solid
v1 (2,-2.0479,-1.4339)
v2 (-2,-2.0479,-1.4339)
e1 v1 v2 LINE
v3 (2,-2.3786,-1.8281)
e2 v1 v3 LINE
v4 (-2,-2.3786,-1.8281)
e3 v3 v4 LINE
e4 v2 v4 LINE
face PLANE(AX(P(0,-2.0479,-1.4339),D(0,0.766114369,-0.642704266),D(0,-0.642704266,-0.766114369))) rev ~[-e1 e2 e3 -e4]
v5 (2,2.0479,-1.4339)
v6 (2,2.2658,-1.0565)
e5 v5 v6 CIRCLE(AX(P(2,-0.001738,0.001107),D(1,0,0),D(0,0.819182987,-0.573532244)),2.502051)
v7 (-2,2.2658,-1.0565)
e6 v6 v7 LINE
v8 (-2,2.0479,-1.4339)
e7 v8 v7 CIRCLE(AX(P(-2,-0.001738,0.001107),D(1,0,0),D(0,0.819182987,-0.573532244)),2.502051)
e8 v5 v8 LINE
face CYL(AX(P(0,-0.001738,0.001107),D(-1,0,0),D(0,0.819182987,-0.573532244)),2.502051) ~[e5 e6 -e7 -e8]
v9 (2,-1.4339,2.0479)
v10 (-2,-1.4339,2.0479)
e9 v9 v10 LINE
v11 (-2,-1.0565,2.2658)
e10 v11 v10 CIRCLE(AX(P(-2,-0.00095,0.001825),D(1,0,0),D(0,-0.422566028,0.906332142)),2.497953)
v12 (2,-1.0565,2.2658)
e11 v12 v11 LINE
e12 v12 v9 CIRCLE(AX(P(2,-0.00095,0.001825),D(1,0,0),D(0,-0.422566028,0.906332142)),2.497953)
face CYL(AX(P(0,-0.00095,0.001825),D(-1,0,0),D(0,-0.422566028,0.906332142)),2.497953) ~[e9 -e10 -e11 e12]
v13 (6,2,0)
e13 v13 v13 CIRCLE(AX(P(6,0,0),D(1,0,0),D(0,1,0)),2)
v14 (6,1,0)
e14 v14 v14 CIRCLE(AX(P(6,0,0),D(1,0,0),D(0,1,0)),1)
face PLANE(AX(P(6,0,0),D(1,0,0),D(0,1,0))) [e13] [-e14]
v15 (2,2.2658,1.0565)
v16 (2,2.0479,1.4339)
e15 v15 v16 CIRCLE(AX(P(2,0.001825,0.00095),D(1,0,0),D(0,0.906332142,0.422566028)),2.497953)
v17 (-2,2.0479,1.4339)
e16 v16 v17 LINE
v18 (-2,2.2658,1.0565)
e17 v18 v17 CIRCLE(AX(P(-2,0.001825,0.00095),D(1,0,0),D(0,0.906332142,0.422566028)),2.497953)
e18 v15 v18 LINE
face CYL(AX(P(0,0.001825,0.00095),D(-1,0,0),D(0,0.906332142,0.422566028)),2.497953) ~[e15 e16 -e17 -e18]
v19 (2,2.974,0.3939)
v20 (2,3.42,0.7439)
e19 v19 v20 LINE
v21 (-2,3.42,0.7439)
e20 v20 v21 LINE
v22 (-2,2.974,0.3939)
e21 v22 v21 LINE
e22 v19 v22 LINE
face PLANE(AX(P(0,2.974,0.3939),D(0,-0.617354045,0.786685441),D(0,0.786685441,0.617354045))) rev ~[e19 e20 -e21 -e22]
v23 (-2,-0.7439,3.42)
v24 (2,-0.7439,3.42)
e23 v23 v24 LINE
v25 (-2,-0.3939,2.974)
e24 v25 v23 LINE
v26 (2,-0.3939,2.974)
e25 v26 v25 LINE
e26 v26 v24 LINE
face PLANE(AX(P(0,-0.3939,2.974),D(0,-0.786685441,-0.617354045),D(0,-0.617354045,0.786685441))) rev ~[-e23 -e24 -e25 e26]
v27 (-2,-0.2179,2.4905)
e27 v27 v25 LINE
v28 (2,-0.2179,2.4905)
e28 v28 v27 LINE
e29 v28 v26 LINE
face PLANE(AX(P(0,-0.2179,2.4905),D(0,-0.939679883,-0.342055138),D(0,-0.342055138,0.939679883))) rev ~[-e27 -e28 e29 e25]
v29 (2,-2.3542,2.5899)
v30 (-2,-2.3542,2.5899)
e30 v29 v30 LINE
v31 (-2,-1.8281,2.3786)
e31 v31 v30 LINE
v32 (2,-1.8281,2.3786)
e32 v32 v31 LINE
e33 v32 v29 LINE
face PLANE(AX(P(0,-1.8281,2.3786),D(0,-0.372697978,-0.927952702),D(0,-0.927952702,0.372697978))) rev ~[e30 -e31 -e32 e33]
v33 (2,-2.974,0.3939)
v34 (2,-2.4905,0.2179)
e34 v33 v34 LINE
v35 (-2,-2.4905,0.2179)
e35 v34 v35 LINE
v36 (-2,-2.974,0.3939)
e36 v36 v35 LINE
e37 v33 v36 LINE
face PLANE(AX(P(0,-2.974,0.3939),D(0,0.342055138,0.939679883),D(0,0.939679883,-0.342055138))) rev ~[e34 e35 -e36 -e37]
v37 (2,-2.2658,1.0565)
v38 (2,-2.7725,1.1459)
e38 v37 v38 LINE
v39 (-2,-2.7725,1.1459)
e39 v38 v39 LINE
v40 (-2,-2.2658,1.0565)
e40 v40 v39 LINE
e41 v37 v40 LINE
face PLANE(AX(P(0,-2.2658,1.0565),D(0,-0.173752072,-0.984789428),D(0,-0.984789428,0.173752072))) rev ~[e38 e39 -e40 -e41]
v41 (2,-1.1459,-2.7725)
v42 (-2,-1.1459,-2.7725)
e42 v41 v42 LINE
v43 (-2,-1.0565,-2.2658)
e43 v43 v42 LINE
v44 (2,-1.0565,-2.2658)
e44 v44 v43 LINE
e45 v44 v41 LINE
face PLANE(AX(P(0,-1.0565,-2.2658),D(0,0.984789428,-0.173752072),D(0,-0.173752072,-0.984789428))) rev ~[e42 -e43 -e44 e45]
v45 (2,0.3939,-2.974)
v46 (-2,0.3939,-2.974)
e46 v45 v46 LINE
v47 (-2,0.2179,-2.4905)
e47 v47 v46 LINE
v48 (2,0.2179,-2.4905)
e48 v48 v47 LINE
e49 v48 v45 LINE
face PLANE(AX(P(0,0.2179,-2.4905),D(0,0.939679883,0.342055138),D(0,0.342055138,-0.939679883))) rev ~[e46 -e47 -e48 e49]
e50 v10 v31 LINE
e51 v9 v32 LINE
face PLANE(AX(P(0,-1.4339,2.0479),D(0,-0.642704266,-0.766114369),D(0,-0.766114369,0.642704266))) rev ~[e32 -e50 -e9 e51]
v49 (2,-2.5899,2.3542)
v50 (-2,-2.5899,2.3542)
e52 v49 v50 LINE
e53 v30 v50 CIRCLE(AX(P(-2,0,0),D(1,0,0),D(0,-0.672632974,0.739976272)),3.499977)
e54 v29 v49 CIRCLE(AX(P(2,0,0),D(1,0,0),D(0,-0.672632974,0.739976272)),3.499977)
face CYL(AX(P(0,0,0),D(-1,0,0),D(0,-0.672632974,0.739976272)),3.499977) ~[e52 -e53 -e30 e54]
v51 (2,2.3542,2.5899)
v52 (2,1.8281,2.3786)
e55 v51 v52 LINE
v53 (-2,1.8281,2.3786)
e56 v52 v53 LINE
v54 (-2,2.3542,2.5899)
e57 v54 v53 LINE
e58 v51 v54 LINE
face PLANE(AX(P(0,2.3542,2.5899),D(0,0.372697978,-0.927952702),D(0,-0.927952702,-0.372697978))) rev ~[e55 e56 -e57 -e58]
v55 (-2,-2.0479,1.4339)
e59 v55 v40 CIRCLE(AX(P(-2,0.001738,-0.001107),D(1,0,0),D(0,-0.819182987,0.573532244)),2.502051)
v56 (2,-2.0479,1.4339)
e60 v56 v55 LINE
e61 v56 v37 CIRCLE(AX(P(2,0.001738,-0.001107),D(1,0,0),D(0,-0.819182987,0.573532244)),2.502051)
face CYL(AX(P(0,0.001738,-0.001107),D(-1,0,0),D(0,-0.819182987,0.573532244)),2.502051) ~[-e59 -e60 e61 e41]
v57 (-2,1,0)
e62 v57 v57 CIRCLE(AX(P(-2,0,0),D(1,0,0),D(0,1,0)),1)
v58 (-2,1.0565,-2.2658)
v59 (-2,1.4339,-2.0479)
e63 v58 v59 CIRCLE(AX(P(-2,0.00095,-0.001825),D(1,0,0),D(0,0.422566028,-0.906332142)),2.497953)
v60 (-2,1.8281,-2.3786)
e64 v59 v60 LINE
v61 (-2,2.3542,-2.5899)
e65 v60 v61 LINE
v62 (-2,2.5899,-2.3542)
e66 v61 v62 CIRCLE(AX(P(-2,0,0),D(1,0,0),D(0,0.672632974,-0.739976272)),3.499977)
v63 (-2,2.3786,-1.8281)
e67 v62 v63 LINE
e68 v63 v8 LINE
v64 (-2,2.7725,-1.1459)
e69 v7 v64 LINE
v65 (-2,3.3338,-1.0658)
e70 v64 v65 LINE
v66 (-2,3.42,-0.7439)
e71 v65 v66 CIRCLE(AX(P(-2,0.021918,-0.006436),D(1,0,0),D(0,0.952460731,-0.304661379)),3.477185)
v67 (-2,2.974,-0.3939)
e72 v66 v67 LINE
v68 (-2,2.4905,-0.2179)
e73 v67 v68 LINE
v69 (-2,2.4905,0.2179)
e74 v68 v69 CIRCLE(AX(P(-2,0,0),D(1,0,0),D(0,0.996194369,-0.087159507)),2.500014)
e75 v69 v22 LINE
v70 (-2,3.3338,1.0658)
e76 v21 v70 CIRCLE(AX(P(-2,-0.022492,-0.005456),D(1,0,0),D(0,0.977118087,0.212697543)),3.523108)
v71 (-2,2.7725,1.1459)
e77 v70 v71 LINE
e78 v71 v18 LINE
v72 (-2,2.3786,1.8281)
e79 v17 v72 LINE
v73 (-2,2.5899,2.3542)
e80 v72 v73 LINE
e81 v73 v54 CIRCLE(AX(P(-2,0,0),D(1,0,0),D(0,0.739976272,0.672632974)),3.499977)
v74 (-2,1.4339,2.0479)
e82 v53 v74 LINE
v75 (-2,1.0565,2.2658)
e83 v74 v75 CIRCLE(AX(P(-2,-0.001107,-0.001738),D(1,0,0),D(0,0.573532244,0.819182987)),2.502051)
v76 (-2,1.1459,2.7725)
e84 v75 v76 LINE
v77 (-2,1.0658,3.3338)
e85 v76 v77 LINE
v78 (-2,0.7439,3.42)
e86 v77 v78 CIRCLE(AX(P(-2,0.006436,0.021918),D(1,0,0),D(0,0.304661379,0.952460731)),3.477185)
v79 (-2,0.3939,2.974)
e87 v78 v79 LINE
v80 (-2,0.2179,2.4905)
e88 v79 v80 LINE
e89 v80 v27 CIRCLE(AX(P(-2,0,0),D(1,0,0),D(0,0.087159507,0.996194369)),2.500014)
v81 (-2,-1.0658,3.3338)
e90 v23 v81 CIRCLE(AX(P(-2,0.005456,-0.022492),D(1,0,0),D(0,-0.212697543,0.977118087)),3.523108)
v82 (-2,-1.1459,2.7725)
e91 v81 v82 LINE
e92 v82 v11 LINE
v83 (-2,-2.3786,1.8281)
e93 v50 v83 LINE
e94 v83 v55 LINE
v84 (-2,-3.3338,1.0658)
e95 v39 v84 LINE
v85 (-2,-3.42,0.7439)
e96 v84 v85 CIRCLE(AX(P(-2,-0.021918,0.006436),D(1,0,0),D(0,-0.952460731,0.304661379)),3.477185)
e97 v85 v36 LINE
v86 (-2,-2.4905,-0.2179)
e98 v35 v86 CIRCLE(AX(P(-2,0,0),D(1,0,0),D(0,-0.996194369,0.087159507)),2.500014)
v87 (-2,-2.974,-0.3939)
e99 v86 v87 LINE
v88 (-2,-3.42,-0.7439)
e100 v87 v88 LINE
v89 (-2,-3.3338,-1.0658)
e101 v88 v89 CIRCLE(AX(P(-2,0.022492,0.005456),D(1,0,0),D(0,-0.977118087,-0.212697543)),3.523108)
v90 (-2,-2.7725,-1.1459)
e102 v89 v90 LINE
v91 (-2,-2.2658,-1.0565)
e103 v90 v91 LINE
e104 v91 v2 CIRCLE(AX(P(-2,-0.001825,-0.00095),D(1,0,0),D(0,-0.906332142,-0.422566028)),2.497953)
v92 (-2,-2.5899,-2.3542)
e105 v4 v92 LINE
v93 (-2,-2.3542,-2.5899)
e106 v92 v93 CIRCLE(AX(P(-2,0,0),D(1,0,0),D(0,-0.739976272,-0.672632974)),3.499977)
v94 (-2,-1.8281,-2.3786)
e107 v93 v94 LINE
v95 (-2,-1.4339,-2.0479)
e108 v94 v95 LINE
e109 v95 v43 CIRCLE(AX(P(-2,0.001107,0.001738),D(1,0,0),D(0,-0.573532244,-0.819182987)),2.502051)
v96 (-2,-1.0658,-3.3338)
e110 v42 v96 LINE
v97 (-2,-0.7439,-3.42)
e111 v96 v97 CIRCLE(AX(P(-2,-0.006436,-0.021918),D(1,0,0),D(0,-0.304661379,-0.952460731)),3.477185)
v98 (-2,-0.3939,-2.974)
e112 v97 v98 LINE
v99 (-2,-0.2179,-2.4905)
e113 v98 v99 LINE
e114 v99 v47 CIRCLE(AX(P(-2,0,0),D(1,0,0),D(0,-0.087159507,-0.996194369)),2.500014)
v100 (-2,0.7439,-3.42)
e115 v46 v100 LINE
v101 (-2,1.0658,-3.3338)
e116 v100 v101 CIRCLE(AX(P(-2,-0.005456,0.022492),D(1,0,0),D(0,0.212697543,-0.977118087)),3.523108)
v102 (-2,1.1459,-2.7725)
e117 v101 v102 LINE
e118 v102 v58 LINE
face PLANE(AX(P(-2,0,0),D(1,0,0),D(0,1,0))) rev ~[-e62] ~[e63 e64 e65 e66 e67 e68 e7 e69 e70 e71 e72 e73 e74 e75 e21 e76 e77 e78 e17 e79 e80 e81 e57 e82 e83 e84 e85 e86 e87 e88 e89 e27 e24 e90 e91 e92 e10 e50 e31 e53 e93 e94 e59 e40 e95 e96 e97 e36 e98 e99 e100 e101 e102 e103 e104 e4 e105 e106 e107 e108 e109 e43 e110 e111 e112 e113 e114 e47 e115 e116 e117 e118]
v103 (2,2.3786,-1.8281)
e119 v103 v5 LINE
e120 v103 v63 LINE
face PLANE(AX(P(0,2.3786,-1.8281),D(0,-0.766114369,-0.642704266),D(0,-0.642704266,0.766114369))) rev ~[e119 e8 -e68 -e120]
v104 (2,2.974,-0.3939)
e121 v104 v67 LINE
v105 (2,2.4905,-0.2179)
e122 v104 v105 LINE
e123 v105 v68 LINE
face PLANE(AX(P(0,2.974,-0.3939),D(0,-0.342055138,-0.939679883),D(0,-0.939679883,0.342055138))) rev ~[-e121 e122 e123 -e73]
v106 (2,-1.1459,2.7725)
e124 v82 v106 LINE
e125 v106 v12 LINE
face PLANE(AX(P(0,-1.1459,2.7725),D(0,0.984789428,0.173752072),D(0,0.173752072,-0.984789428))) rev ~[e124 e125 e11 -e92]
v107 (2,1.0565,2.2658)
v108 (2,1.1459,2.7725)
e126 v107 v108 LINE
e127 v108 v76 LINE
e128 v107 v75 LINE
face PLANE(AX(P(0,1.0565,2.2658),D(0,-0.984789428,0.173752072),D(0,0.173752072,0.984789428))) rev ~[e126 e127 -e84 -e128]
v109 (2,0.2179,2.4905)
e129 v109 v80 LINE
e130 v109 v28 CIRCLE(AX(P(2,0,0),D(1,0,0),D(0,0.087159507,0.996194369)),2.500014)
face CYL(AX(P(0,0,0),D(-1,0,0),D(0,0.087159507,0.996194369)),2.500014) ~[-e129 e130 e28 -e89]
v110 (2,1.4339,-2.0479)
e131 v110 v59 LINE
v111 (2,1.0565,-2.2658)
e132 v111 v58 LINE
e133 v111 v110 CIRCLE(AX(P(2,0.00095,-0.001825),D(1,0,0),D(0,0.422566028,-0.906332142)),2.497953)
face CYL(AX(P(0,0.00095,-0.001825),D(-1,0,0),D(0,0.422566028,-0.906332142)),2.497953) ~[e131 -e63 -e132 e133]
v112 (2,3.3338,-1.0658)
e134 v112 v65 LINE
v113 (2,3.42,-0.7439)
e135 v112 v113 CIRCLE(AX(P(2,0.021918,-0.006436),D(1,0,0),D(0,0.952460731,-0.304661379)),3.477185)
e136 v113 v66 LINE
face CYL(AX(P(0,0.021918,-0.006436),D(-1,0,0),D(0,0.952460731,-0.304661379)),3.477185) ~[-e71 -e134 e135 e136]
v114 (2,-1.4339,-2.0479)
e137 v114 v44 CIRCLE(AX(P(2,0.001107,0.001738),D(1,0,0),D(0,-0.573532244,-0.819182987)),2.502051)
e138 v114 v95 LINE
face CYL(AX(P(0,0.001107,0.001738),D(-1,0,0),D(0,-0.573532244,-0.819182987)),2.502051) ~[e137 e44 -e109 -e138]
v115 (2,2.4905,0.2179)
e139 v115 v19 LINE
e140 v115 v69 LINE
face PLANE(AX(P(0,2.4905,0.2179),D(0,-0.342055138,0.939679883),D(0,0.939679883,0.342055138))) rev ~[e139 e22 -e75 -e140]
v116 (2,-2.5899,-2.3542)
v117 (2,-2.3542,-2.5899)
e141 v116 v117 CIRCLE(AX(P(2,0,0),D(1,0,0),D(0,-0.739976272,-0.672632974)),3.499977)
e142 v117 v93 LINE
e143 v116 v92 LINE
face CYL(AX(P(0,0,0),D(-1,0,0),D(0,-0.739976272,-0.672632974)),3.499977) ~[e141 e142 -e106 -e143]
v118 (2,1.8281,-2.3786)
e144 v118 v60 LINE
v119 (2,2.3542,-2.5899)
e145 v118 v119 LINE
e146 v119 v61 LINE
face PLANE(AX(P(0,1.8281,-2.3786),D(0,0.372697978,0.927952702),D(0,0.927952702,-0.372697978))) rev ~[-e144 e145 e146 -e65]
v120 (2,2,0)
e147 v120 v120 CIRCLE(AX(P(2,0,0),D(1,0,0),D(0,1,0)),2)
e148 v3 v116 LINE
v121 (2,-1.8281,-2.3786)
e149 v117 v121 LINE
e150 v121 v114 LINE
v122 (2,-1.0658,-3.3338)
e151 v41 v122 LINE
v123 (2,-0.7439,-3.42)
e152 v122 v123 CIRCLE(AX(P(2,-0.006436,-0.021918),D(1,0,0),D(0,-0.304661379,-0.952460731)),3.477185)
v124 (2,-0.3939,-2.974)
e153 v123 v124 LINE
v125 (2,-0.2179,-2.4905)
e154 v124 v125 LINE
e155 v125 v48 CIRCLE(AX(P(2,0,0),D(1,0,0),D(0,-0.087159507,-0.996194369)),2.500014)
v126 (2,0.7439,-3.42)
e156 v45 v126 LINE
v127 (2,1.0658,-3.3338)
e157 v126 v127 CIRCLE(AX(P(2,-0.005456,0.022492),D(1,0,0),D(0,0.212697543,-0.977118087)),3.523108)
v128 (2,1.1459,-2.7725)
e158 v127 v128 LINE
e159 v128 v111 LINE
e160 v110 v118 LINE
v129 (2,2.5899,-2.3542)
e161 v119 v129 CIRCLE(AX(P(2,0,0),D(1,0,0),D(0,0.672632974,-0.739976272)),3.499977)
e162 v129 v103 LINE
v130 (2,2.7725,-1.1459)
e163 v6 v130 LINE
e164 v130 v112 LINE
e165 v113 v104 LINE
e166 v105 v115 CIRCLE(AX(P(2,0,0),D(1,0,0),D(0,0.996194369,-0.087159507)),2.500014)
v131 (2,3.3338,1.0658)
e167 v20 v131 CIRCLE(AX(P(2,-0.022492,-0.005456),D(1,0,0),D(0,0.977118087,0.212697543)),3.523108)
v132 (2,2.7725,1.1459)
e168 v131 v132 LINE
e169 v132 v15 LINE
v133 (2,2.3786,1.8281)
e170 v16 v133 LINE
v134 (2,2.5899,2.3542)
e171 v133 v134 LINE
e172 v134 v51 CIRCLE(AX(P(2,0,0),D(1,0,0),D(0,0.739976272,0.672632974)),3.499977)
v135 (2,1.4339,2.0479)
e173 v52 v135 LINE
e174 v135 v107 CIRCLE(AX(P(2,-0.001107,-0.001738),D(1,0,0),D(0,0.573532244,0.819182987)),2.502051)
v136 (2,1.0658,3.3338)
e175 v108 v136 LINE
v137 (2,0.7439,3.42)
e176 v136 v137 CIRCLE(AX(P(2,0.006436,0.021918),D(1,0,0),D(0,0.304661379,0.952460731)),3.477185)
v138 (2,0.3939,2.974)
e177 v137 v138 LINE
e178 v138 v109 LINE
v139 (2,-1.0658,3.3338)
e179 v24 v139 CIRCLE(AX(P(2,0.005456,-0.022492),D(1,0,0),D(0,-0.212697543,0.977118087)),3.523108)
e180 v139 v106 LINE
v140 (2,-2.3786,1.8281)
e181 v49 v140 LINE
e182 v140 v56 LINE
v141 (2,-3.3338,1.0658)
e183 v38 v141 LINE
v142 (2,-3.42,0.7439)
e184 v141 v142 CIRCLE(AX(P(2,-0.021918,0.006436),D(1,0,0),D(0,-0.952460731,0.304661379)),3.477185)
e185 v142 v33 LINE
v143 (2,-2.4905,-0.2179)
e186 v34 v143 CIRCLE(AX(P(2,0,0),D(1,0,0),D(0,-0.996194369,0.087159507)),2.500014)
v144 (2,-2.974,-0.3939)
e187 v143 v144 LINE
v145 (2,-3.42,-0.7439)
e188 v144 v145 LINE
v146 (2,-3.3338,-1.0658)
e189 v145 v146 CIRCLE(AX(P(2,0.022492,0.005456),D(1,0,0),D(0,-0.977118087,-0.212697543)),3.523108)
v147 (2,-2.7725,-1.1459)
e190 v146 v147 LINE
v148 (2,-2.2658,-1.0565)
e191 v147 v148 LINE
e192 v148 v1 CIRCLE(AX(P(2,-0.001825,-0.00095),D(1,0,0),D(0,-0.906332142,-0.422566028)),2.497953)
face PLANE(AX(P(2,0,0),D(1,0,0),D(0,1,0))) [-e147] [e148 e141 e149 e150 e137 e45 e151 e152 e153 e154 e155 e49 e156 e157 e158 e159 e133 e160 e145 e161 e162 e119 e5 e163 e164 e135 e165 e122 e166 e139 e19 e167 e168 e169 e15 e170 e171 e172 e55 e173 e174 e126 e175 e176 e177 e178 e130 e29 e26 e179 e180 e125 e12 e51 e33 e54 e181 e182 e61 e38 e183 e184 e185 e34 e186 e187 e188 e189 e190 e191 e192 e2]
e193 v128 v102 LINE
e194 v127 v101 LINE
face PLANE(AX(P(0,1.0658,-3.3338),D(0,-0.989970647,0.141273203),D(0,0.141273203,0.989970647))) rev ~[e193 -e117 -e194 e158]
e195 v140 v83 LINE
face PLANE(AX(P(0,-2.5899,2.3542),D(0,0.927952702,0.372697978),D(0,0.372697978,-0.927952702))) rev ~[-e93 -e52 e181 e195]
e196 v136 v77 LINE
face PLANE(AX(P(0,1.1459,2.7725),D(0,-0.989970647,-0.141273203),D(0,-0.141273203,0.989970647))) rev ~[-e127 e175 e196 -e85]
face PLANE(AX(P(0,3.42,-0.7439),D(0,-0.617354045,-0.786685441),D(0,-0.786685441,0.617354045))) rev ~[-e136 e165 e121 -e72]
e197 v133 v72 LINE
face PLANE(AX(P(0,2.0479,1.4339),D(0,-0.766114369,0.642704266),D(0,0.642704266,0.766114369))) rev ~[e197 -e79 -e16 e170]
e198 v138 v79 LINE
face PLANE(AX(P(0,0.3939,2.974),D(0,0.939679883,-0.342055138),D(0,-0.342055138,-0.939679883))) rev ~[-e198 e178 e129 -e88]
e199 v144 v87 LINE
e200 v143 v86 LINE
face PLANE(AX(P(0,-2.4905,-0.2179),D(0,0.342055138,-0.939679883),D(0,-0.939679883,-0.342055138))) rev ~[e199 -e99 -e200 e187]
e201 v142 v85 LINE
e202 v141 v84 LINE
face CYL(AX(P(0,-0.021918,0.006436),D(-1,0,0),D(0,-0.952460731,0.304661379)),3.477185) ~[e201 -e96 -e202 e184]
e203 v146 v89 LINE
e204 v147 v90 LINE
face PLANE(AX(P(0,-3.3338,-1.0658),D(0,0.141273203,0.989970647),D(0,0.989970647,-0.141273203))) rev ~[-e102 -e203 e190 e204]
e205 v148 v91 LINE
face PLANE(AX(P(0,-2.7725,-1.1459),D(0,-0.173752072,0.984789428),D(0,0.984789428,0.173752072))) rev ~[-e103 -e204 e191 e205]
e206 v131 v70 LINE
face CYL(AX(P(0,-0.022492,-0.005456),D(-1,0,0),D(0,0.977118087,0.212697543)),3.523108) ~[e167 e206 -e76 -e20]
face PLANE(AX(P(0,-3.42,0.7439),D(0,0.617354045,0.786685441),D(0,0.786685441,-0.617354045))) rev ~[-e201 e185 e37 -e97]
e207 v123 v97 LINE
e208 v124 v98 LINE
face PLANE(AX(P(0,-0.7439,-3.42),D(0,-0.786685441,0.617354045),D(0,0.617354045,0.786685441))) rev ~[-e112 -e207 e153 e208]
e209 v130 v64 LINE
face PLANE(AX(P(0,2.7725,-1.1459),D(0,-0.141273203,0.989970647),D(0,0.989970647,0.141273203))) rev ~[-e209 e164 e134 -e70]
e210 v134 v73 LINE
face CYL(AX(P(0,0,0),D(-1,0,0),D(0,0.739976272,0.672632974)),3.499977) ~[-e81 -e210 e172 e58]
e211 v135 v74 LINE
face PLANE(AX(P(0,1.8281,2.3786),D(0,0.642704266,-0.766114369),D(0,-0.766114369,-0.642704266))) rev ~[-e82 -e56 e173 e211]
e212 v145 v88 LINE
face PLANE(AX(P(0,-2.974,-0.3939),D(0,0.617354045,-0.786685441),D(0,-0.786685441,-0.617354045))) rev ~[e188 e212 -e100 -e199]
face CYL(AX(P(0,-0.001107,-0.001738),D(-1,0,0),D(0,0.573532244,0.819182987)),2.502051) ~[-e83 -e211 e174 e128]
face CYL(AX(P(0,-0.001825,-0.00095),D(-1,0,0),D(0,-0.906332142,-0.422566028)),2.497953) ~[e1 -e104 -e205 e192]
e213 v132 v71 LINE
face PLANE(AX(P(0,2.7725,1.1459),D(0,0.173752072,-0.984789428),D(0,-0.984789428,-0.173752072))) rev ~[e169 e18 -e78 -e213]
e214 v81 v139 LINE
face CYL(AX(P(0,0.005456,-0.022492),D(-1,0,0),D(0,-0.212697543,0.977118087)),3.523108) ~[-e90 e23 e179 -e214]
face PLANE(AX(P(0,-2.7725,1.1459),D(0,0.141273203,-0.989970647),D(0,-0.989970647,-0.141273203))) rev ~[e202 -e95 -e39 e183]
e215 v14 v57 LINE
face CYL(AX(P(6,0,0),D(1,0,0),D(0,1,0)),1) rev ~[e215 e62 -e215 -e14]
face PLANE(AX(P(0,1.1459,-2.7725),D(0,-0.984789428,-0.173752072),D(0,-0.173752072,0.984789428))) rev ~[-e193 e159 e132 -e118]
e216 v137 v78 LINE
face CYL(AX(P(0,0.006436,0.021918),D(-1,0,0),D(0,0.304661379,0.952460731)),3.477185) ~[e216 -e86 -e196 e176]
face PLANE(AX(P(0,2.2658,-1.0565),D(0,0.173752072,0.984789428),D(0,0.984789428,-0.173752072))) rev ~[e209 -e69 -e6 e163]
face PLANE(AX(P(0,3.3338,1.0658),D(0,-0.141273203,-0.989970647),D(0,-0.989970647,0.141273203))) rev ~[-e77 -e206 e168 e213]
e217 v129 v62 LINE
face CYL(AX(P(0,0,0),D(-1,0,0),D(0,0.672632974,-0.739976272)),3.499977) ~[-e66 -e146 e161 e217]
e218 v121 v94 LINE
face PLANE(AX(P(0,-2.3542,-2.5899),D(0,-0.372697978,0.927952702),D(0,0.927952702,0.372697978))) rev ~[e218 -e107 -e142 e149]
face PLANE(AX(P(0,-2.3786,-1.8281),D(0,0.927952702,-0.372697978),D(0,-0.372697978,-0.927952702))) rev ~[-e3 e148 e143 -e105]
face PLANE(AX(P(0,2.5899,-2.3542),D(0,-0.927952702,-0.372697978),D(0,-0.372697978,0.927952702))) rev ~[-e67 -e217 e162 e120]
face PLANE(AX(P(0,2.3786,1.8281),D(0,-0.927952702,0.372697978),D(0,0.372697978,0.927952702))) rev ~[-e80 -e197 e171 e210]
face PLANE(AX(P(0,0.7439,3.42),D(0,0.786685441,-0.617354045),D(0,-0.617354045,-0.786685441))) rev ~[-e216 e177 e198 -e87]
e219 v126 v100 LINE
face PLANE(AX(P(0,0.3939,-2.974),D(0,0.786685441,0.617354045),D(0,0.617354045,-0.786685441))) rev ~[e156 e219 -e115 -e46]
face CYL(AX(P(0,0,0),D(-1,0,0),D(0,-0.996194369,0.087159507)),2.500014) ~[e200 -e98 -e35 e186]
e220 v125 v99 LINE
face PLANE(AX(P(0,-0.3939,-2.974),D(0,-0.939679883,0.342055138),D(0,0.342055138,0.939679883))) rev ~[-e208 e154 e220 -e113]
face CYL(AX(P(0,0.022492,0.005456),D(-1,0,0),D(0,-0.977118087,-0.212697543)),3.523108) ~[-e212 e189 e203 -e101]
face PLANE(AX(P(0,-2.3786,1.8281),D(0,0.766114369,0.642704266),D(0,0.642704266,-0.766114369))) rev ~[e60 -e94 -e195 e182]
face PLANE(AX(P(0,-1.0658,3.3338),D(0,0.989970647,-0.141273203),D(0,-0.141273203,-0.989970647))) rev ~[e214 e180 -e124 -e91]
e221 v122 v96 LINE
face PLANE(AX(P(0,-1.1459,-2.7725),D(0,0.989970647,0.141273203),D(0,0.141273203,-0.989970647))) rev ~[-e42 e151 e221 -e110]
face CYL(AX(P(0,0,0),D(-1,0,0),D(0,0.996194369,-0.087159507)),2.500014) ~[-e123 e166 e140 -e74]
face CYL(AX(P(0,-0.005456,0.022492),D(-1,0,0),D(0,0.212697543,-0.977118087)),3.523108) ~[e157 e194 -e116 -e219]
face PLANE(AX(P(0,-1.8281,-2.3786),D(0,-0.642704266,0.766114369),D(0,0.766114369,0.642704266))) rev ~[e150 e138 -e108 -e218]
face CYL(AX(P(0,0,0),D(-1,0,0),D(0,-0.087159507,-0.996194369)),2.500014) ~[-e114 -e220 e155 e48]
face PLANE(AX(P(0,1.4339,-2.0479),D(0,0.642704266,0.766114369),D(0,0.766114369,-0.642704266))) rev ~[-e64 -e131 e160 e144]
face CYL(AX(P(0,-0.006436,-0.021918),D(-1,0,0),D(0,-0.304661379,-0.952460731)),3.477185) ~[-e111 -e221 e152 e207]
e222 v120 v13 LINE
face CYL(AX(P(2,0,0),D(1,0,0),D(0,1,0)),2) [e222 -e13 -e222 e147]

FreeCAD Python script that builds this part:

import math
import FreeCAD as App
import Part
import Sketcher
from FreeCAD import Vector
Q = App.Units.Quantity

doc = App.newDocument("Part")
body = doc.addObject("PartDesign::Body", "Body")

# Sketch on YZ plane
sketch1 = body.newObject("Sketcher::SketchObject", "Sketch")
sketch1.AttachmentSupport = (doc.getObject("YZ_Plane"), [""])
sketch1.MapMode = "FlatFace"
sketch1.addGeometry(Part.LineSegment(Vector(-0.3939, 2.974, 0), Vector(-0.7439, 3.42, 0)), False)
sketch1.addGeometry(Part.ArcOfCircle(Part.Circle(Vector(0.005456, -0.022492, 0), Vector(0, 0, 1), 3.523108), math.radians(102.280482), math.radians(107.701965)), False)
sketch1.addGeometry(Part.LineSegment(Vector(-1.0658, 3.3338, 0), Vector(-1.1459, 2.7725, 0)), False)
sketch1.addGeometry(Part.LineSegment(Vector(-1.1459, 2.7725, 0), Vector(-1.0565, 2.2658, 0)), False)
sketch1.addGeometry(Part.ArcOfCircle(Part.Circle(Vector(-0.00095, 0.001825, 0), Vector(0, 0, 1), 2.497953), math.radians(114.996698), math.radians(125.005126)), False)
sketch1.addGeometry(Part.LineSegment(Vector(-1.4339, 2.0479, 0), Vector(-1.8281, 2.3786, 0)), False)
sketch1.addGeometry(Part.LineSegment(Vector(-1.8281, 2.3786, 0), Vector(-2.3542, 2.5899, 0)), False)
sketch1.addGeometry(Part.ArcOfCircle(Part.Circle(Vector(0, 0, 0), Vector(0, 0, 1), 3.499977), math.radians(132.270606), math.radians(137.729394)), False)
sketch1.addGeometry(Part.LineSegment(Vector(-2.5899, 2.3542, 0), Vector(-2.3786, 1.8281, 0)), False)
sketch1.addGeometry(Part.LineSegment(Vector(-2.3786, 1.8281, 0), Vector(-2.0479, 1.4339, 0)), False)
sketch1.addGeometry(Part.ArcOfCircle(Part.Circle(Vector(0.001738, -0.001107, 0), Vector(0, 0, 1), 2.502051), math.radians(145.003091), math.radians(154.995085)), False)
sketch1.addGeometry(Part.LineSegment(Vector(-2.2658, 1.0565, 0), Vector(-2.7725, 1.1459, 0)), False)
sketch1.addGeometry(Part.LineSegment(Vector(-2.7725, 1.1459, 0), Vector(-3.3338, 1.0658, 0)), False)
sketch1.addGeometry(Part.ArcOfCircle(Part.Circle(Vector(-0.021918, 0.006436, 0), Vector(0, 0, 1), 3.477185), math.radians(162.262207), math.radians(167.755345)), False)
sketch1.addGeometry(Part.LineSegment(Vector(-3.42, 0.7439, 0), Vector(-2.974, 0.3939, 0)), False)
sketch1.addGeometry(Part.LineSegment(Vector(-2.974, 0.3939, 0), Vector(-2.4905, 0.2179, 0)), False)
sketch1.addGeometry(Part.ArcOfCircle(Part.Circle(Vector(0, 0, 0), Vector(0, 0, 1), 2.500014), math.radians(174.999783), math.radians(185.000217)), False)
sketch1.addGeometry(Part.LineSegment(Vector(-2.4905, -0.2179, 0), Vector(-2.974, -0.3939, 0)), False)
sketch1.addGeometry(Part.LineSegment(Vector(-2.974, -0.3939, 0), Vector(-3.42, -0.7439, 0)), False)
sketch1.addGeometry(Part.ArcOfCircle(Part.Circle(Vector(0.022492, 0.005456, 0), Vector(0, 0, 1), 3.523108), math.radians(-167.719518), math.radians(-162.298035)), False)
sketch1.addGeometry(Part.LineSegment(Vector(-3.3338, -1.0658, 0), Vector(-2.7725, -1.1459, 0)), False)
sketch1.addGeometry(Part.LineSegment(Vector(-2.7725, -1.1459, 0), Vector(-2.2658, -1.0565, 0)), False)
sketch1.addGeometry(Part.ArcOfCircle(Part.Circle(Vector(-0.001825, -0.00095, 0), Vector(0, 0, 1), 2.497953), math.radians(-155.003302), math.radians(-144.994874)), False)
sketch1.addGeometry(Part.LineSegment(Vector(-2.0479, -1.4339, 0), Vector(-2.3786, -1.8281, 0)), False)
sketch1.addGeometry(Part.LineSegment(Vector(-2.3786, -1.8281, 0), Vector(-2.5899, -2.3542, 0)), False)
sketch1.addGeometry(Part.ArcOfCircle(Part.Circle(Vector(0, 0, 0), Vector(0, 0, 1), 3.499977), math.radians(-137.729394), math.radians(-132.270606)), False)
sketch1.addGeometry(Part.LineSegment(Vector(-2.3542, -2.5899, 0), Vector(-1.8281, -2.3786, 0)), False)
sketch1.addGeometry(Part.LineSegment(Vector(-1.8281, -2.3786, 0), Vector(-1.4339, -2.0479, 0)), False)
sketch1.addGeometry(Part.ArcOfCircle(Part.Circle(Vector(0.001107, 0.001738, 0), Vector(0, 0, 1), 2.502051), math.radians(-124.996909), math.radians(-115.004915)), False)
sketch1.addGeometry(Part.LineSegment(Vector(-1.0565, -2.2658, 0), Vector(-1.1459, -2.7725, 0)), False)
sketch1.addGeometry(Part.LineSegment(Vector(-1.1459, -2.7725, 0), Vector(-1.0658, -3.3338, 0)), False)
sketch1.addGeometry(Part.ArcOfCircle(Part.Circle(Vector(-0.006436, -0.021918, 0), Vector(0, 0, 1), 3.477185), math.radians(-107.737793), math.radians(-102.244655)), False)
sketch1.addGeometry(Part.LineSegment(Vector(-0.7439, -3.42, 0), Vector(-0.3939, -2.974, 0)), False)
sketch1.addGeometry(Part.LineSegment(Vector(-0.3939, -2.974, 0), Vector(-0.2179, -2.4905, 0)), False)
sketch1.addGeometry(Part.ArcOfCircle(Part.Circle(Vector(0, 0, 0), Vector(0, 0, 1), 2.500014), math.radians(-95.000217), math.radians(-84.999783)), False)
sketch1.addGeometry(Part.LineSegment(Vector(0.2179, -2.4905, 0), Vector(0.3939, -2.974, 0)), False)
sketch1.addGeometry(Part.LineSegment(Vector(0.3939, -2.974, 0), Vector(0.7439, -3.42, 0)), False)
sketch1.addGeometry(Part.ArcOfCircle(Part.Circle(Vector(-0.005456, 0.022492, 0), Vector(0, 0, 1), 3.523108), math.radians(-77.719518), math.radians(-72.298035)), False)
sketch1.addGeometry(Part.LineSegment(Vector(1.0658, -3.3338, 0), Vector(1.1459, -2.7725, 0)), False)
sketch1.addGeometry(Part.LineSegment(Vector(1.1459, -2.7725, 0), Vector(1.0565, -2.2658, 0)), False)
sketch1.addGeometry(Part.ArcOfCircle(Part.Circle(Vector(0.00095, -0.001825, 0), Vector(0, 0, 1), 2.497953), math.radians(-65.003302), math.radians(-54.994874)), False)
sketch1.addGeometry(Part.LineSegment(Vector(1.4339, -2.0479, 0), Vector(1.8281, -2.3786, 0)), False)
sketch1.addGeometry(Part.LineSegment(Vector(1.8281, -2.3786, 0), Vector(2.3542, -2.5899, 0)), False)
sketch1.addGeometry(Part.ArcOfCircle(Part.Circle(Vector(0, 0, 0), Vector(0, 0, 1), 3.499977), math.radians(-47.729394), math.radians(-42.270606)), False)
sketch1.addGeometry(Part.LineSegment(Vector(2.5899, -2.3542, 0), Vector(2.3786, -1.8281, 0)), False)
sketch1.addGeometry(Part.LineSegment(Vector(2.3786, -1.8281, 0), Vector(2.0479, -1.4339, 0)), False)
sketch1.addGeometry(Part.ArcOfCircle(Part.Circle(Vector(-0.001738, 0.001107, 0), Vector(0, 0, 1), 2.502051), math.radians(-34.996909), math.radians(-25.004915)), False)
sketch1.addGeometry(Part.LineSegment(Vector(2.2658, -1.0565, 0), Vector(2.7725, -1.1459, 0)), False)
sketch1.addGeometry(Part.LineSegment(Vector(2.7725, -1.1459, 0), Vector(3.3338, -1.0658, 0)), False)
sketch1.addGeometry(Part.ArcOfCircle(Part.Circle(Vector(0.021918, -0.006436, 0), Vector(0, 0, 1), 3.477185), math.radians(-17.737793), math.radians(-12.244655)), False)
sketch1.addGeometry(Part.LineSegment(Vector(3.42, -0.7439, 0), Vector(2.974, -0.3939, 0)), False)
sketch1.addGeometry(Part.LineSegment(Vector(2.974, -0.3939, 0), Vector(2.4905, -0.2179, 0)), False)
sketch1.addGeometry(Part.ArcOfCircle(Part.Circle(Vector(0, 0, 0), Vector(0, 0, 1), 2.500014), math.radians(-5.000217), math.radians(5.000217)), False)
sketch1.addGeometry(Part.LineSegment(Vector(2.4905, 0.2179, 0), Vector(2.974, 0.3939, 0)), False)
sketch1.addGeometry(Part.LineSegment(Vector(2.974, 0.3939, 0), Vector(3.42, 0.7439, 0)), False)
sketch1.addGeometry(Part.ArcOfCircle(Part.Circle(Vector(-0.022492, -0.005456, 0), Vector(0, 0, 1), 3.523108), math.radians(12.280482), math.radians(17.701965)), False)
sketch1.addGeometry(Part.LineSegment(Vector(3.3338, 1.0658, 0), Vector(2.7725, 1.1459, 0)), False)
sketch1.addGeometry(Part.LineSegment(Vector(2.7725, 1.1459, 0), Vector(2.2658, 1.0565, 0)), False)
sketch1.addGeometry(Part.ArcOfCircle(Part.Circle(Vector(0.001825, 0.00095, 0), Vector(0, 0, 1), 2.497953), math.radians(24.996698), math.radians(35.005126)), False)
sketch1.addGeometry(Part.LineSegment(Vector(2.0479, 1.4339, 0), Vector(2.3786, 1.8281, 0)), False)
sketch1.addGeometry(Part.LineSegment(Vector(2.3786, 1.8281, 0), Vector(2.5899, 2.3542, 0)), False)
sketch1.addGeometry(Part.ArcOfCircle(Part.Circle(Vector(0, 0, 0), Vector(0, 0, 1), 3.499977), math.radians(42.270606), math.radians(47.729394)), False)
sketch1.addGeometry(Part.LineSegment(Vector(2.3542, 2.5899, 0), Vector(1.8281, 2.3786, 0)), False)
sketch1.addGeometry(Part.LineSegment(Vector(1.8281, 2.3786, 0), Vector(1.4339, 2.0479, 0)), False)
sketch1.addGeometry(Part.ArcOfCircle(Part.Circle(Vector(-0.001107, -0.001738, 0), Vector(0, 0, 1), 2.502051), math.radians(55.003091), math.radians(64.995085)), False)
sketch1.addGeometry(Part.LineSegment(Vector(1.0565, 2.2658, 0), Vector(1.1459, 2.7725, 0)), False)
sketch1.addGeometry(Part.LineSegment(Vector(1.1459, 2.7725, 0), Vector(1.0658, 3.3338, 0)), False)
sketch1.addGeometry(Part.ArcOfCircle(Part.Circle(Vector(0.006436, 0.021918, 0), Vector(0, 0, 1), 3.477185), math.radians(72.262207), math.radians(77.755345)), False)
sketch1.addGeometry(Part.LineSegment(Vector(0.7439, 3.42, 0), Vector(0.3939, 2.974, 0)), False)
sketch1.addGeometry(Part.LineSegment(Vector(0.3939, 2.974, 0), Vector(0.2179, 2.4905, 0)), False)
sketch1.addGeometry(Part.ArcOfCircle(Part.Circle(Vector(0, 0, 0), Vector(0, 0, 1), 2.500014), math.radians(84.999783), math.radians(95.000217)), False)
sketch1.addGeometry(Part.LineSegment(Vector(-0.2179, 2.4905, 0), Vector(-0.3939, 2.974, 0)), False)
sketch1.addConstraint(Sketcher.Constraint("Coincident", 0, 2, 1, 1))
sketch1.addConstraint(Sketcher.Constraint("Coincident", 1, 2, 2, 1))
sketch1.addConstraint(Sketcher.Constraint("Coincident", 2, 2, 3, 1))
sketch1.addConstraint(Sketcher.Constraint("Coincident", 3, 2, 4, 1))
sketch1.addConstraint(Sketcher.Constraint("Coincident", 4, 2, 5, 1))
sketch1.addConstraint(Sketcher.Constraint("Coincident", 5, 2, 6, 1))
sketch1.addConstraint(Sketcher.Constraint("Coincident", 6, 2, 7, 1))
sketch1.addConstraint(Sketcher.Constraint("Coincident", 7, 2, 8, 1))
sketch1.addConstraint(Sketcher.Constraint("Coincident", 8, 2, 9, 1))
sketch1.addConstraint(Sketcher.Constraint("Coincident", 9, 2, 10, 1))
sketch1.addConstraint(Sketcher.Constraint("Coincident", 10, 2, 11, 1))
sketch1.addConstraint(Sketcher.Constraint("Coincident", 11, 2, 12, 1))
sketch1.addConstraint(Sketcher.Constraint("Coincident", 12, 2, 13, 1))
sketch1.addConstraint(Sketcher.Constraint("Coincident", 13, 2, 14, 1))
sketch1.addConstraint(Sketcher.Constraint("Coincident", 14, 2, 15, 1))
sketch1.addConstraint(Sketcher.Constraint("Coincident", 15, 2, 16, 1))
sketch1.addConstraint(Sketcher.Constraint("Coincident", 16, 2, 17, 1))
sketch1.addConstraint(Sketcher.Constraint("Coincident", 17, 2, 18, 1))
sketch1.addConstraint(Sketcher.Constraint("Coincident", 18, 2, 19, 1))
sketch1.addConstraint(Sketcher.Constraint("Coincident", 19, 2, 20, 1))
sketch1.addConstraint(Sketcher.Constraint("Coincident", 20, 2, 21, 1))
sketch1.addConstraint(Sketcher.Constraint("Coincident", 21, 2, 22, 1))
sketch1.addConstraint(Sketcher.Constraint("Coincident", 22, 2, 23, 1))
sketch1.addConstraint(Sketcher.Constraint("Coincident", 23, 2, 24, 1))
sketch1.addConstraint(Sketcher.Constraint("Coincident", 24, 2, 25, 1))
sketch1.addConstraint(Sketcher.Constraint("Coincident", 25, 2, 26, 1))
sketch1.addConstraint(Sketcher.Constraint("Coincident", 26, 2, 27, 1))
sketch1.addConstraint(Sketcher.Constraint("Coincident", 27, 2, 28, 1))
sketch1.addConstraint(Sketcher.Constraint("Coincident", 28, 2, 29, 1))
sketch1.addConstraint(Sketcher.Constraint("Coincident", 29, 2, 30, 1))
sketch1.addConstraint(Sketcher.Constraint("Coincident", 30, 2, 31, 1))
sketch1.addConstraint(Sketcher.Constraint("Coincident", 31, 2, 32, 1))
sketch1.addConstraint(Sketcher.Constraint("Coincident", 32, 2, 33, 1))
sketch1.addConstraint(Sketcher.Constraint("Coincident", 33, 2, 34, 1))
sketch1.addConstraint(Sketcher.Constraint("Coincident", 34, 2, 35, 1))
sketch1.addConstraint(Sketcher.Constraint("Coincident", 35, 2, 36, 1))
sketch1.addConstraint(Sketcher.Constraint("Coincident", 36, 2, 37, 1))
sketch1.addConstraint(Sketcher.Constraint("Coincident", 37, 2, 38, 1))
sketch1.addConstraint(Sketcher.Constraint("Coincident", 38, 2, 39, 1))
sketch1.addConstraint(Sketcher.Constraint("Coincident", 39, 2, 40, 1))
sketch1.addConstraint(Sketcher.Constraint("Coincident", 40, 2, 41, 1))
sketch1.addConstraint(Sketcher.Constraint("Coincident", 41, 2, 42, 1))
sketch1.addConstraint(Sketcher.Constraint("Coincident", 42, 2, 43, 1))
sketch1.addConstraint(Sketcher.Constraint("Coincident", 43, 2, 44, 1))
sketch1.addConstraint(Sketcher.Constraint("Coincident", 44, 2, 45, 1))
sketch1.addConstraint(Sketcher.Constraint("Coincident", 45, 2, 46, 1))
sketch1.addConstraint(Sketcher.Constraint("Coincident", 46, 2, 47, 1))
sketch1.addConstraint(Sketcher.Constraint("Coincident", 47, 2, 48, 1))
sketch1.addConstraint(Sketcher.Constraint("Coincident", 48, 2, 49, 1))
sketch1.addConstraint(Sketcher.Constraint("Coincident", 49, 2, 50, 1))
sketch1.addConstraint(Sketcher.Constraint("Coincident", 50, 2, 51, 1))
sketch1.addConstraint(Sketcher.Constraint("Coincident", 51, 2, 52, 1))
sketch1.addConstraint(Sketcher.Constraint("Coincident", 52, 2, 53, 1))
sketch1.addConstraint(Sketcher.Constraint("Coincident", 53, 2, 54, 1))
sketch1.addConstraint(Sketcher.Constraint("Coincident", 54, 2, 55, 1))
sketch1.addConstraint(Sketcher.Constraint("Coincident", 55, 2, 56, 1))
sketch1.addConstraint(Sketcher.Constraint("Coincident", 56, 2, 57, 1))
sketch1.addConstraint(Sketcher.Constraint("Coincident", 57, 2, 58, 1))
sketch1.addConstraint(Sketcher.Constraint("Coincident", 58, 2, 59, 1))
sketch1.addConstraint(Sketcher.Constraint("Coincident", 59, 2, 60, 1))
sketch1.addConstraint(Sketcher.Constraint("Coincident", 60, 2, 61, 1))
sketch1.addConstraint(Sketcher.Constraint("Coincident", 61, 2, 62, 1))
sketch1.addConstraint(Sketcher.Constraint("Coincident", 62, 2, 63, 1))
sketch1.addConstraint(Sketcher.Constraint("Coincident", 63, 2, 64, 1))
sketch1.addConstraint(Sketcher.Constraint("Coincident", 64, 2, 65, 1))
sketch1.addConstraint(Sketcher.Constraint("Coincident", 65, 2, 66, 1))
sketch1.addConstraint(Sketcher.Constraint("Coincident", 66, 2, 67, 1))
sketch1.addConstraint(Sketcher.Constraint("Coincident", 67, 2, 68, 1))
sketch1.addConstraint(Sketcher.Constraint("Coincident", 68, 2, 69, 1))
sketch1.addConstraint(Sketcher.Constraint("Coincident", 69, 2, 70, 1))
sketch1.addConstraint(Sketcher.Constraint("Coincident", 70, 2, 71, 1))
sketch1.addConstraint(Sketcher.Constraint("Coincident", 71, 2, 0, 1))
sketch1.addConstraint(Sketcher.Constraint("Coincident", 7, 3, -1, 1))
sketch1.addConstraint(Sketcher.Constraint("Coincident", 16, 3, -1, 1))
sketch1.addConstraint(Sketcher.Constraint("Coincident", 25, 3, -1, 1))
sketch1.addConstraint(Sketcher.Constraint("Coincident", 34, 3, -1, 1))
sketch1.addConstraint(Sketcher.Constraint("Coincident", 43, 3, -1, 1))
sketch1.addConstraint(Sketcher.Constraint("Coincident", 52, 3, -1, 1))
sketch1.addConstraint(Sketcher.Constraint("Coincident", 61, 3, -1, 1))
sketch1.addConstraint(Sketcher.Constraint("Coincident", 70, 3, -1, 1))
sketch1.addConstraint(Sketcher.Constraint("Equal", 1, 19))
sketch1.addConstraint(Sketcher.Constraint("Equal", 4, 22))
sketch1.addConstraint(Sketcher.Constraint("Equal", 7, 25))
sketch1.addConstraint(Sketcher.Constraint("Equal", 10, 28))
sketch1.addConstraint(Sketcher.Constraint("Equal", 13, 31))
sketch1.addConstraint(Sketcher.Constraint("Equal", 16, 34))
sketch1.addConstraint(Sketcher.Constraint("Equal", 19, 37))
sketch1.addConstraint(Sketcher.Constraint("Equal", 22, 40))
sketch1.addConstraint(Sketcher.Constraint("Equal", 25, 43))
sketch1.addConstraint(Sketcher.Constraint("Equal", 28, 46))
sketch1.addConstraint(Sketcher.Constraint("Equal", 31, 49))
sketch1.addConstraint(Sketcher.Constraint("Equal", 34, 52))
sketch1.addConstraint(Sketcher.Constraint("Equal", 37, 55))
sketch1.addConstraint(Sketcher.Constraint("Equal", 40, 58))
sketch1.addConstraint(Sketcher.Constraint("Equal", 43, 61))
sketch1.addConstraint(Sketcher.Constraint("Equal", 46, 64))
sketch1.addConstraint(Sketcher.Constraint("Equal", 49, 67))
sketch1.addConstraint(Sketcher.Constraint("Equal", 52, 70))
sketch1.addConstraint(Sketcher.Constraint("Symmetric", 1, 3, 37, 3, -1, 1))
sketch1.addConstraint(Sketcher.Constraint("Symmetric", 4, 3, 40, 3, -1, 1))
sketch1.addConstraint(Sketcher.Constraint("Symmetric", 10, 3, 46, 3, -1, 1))
sketch1.addConstraint(Sketcher.Constraint("Symmetric", 13, 3, 49, 3, -1, 1))
sketch1.addConstraint(Sketcher.Constraint("Symmetric", 19, 3, 55, 3, -1, 1))
sketch1.addConstraint(Sketcher.Constraint("Symmetric", 22, 3, 58, 3, -1, 1))
sketch1.addConstraint(Sketcher.Constraint("Symmetric", 28, 3, 64, 3, -1, 1))
sketch1.addConstraint(Sketcher.Constraint("Symmetric", 31, 3, 67, 3, -1, 1))
sketch1.addConstraint(Sketcher.Constraint("Symmetric", 2, 2, 38, 2, -1, 1))
sketch1.addConstraint(Sketcher.Constraint("Symmetric", 5, 2, 41, 2, -1, 1))
sketch1.addConstraint(Sketcher.Constraint("Symmetric", 8, 2, 44, 2, -1, 1))
sketch1.addConstraint(Sketcher.Constraint("Symmetric", 11, 2, 47, 2, -1, 1))
sketch1.addConstraint(Sketcher.Constraint("Symmetric", 14, 2, 50, 2, -1, 1))
sketch1.addConstraint(Sketcher.Constraint("Symmetric", 17, 2, 53, 2, -1, 1))
sketch1.addConstraint(Sketcher.Constraint("Symmetric", 20, 2, 56, 2, -1, 1))
sketch1.addConstraint(Sketcher.Constraint("Symmetric", 23, 2, 59, 2, -1, 1))
sketch1.addConstraint(Sketcher.Constraint("Symmetric", 26, 2, 62, 2, -1, 1))
sketch1.addConstraint(Sketcher.Constraint("Symmetric", 29, 2, 65, 2, -1, 1))
sketch1.addConstraint(Sketcher.Constraint("Symmetric", 32, 2, 68, 2, -1, 1))
sketch1.addConstraint(Sketcher.Constraint("Symmetric", 35, 2, 71, 2, -1, 1))
sketch1.addConstraint(Sketcher.Constraint("Symmetric", 10, 3, 22, 3, -2))
sketch1.addConstraint(Sketcher.Constraint("Symmetric", 4, 3, 28, 3, -2))
sketch1.addConstraint(Sketcher.Constraint("Symmetric", 32, 2, 35, 2, -2))
sketch1.addConstraint(Sketcher.Constraint("Symmetric", 31, 2, 36, 2, -2))
sketch1.addConstraint(Sketcher.Constraint("Symmetric", 30, 2, 37, 2, -2))
sketch1.addConstraint(Sketcher.Constraint("Symmetric", 29, 2, 38, 2, -2))
sketch1.addConstraint(Sketcher.Constraint("Symmetric", 28, 2, 39, 2, -2))
sketch1.addConstraint(Sketcher.Constraint("Symmetric", 27, 2, 40, 2, -2))
sketch1.addConstraint(Sketcher.Constraint("Symmetric", 26, 2, 41, 2, -2))
sketch1.addConstraint(Sketcher.Constraint("Symmetric", 23, 2, 44, 2, -2))
sketch1.addConstraint(Sketcher.Constraint("Symmetric", 22, 2, 45, 2, -2))
sketch1.addConstraint(Sketcher.Constraint("Symmetric", 21, 2, 46, 2, -2))
sketch1.addConstraint(Sketcher.Constraint("Symmetric", 20, 2, 47, 2, -2))
sketch1.addConstraint(Sketcher.Constraint("Symmetric", 19, 2, 48, 2, -2))
sketch1.addConstraint(Sketcher.Constraint("Symmetric", 18, 2, 49, 2, -2))
sketch1.addConstraint(Sketcher.Constraint("Symmetric", 17, 2, 50, 2, -2))
sketch1.addConstraint(Sketcher.Constraint("Perpendicular", 0, 18))
sketch1.addConstraint(Sketcher.Constraint("Perpendicular", 2, 20))
sketch1.addConstraint(Sketcher.Constraint("Perpendicular", 3, 21))
sketch1.addConstraint(Sketcher.Constraint("Perpendicular", 5, 23))
sketch1.addConstraint(Sketcher.Constraint("Perpendicular", 6, 24))
sketch1.addConstraint(Sketcher.Constraint("Perpendicular", 8, 26))
sketch1.addConstraint(Sketcher.Constraint("Perpendicular", 9, 27))
sketch1.addConstraint(Sketcher.Constraint("Perpendicular", 11, 29))
sketch1.addConstraint(Sketcher.Constraint("Perpendicular", 12, 30))
sketch1.addConstraint(Sketcher.Constraint("Perpendicular", 14, 32))
sketch1.addConstraint(Sketcher.Constraint("Perpendicular", 15, 33))
sketch1.addConstraint(Sketcher.Constraint("Perpendicular", 17, 35))
sketch1.addConstraint(Sketcher.Constraint("Perpendicular", 18, 36))
sketch1.addConstraint(Sketcher.Constraint("Perpendicular", 20, 38))
sketch1.addConstraint(Sketcher.Constraint("Perpendicular", 21, 39))
sketch1.addConstraint(Sketcher.Constraint("Perpendicular", 23, 41))
sketch1.addConstraint(Sketcher.Constraint("Perpendicular", 24, 42))
sketch1.addConstraint(Sketcher.Constraint("Perpendicular", 26, 44))
sketch1.addConstraint(Sketcher.Constraint("Perpendicular", 33, 51))
sketch1.addConstraint(Sketcher.Constraint("Perpendicular", 35, 53))
sketch1.addConstraint(Sketcher.Constraint("Perpendicular", 36, 54))
sketch1.addConstraint(Sketcher.Constraint("Perpendicular", 38, 56))
sketch1.addConstraint(Sketcher.Constraint("Perpendicular", 39, 57))
sketch1.addConstraint(Sketcher.Constraint("Perpendicular", 41, 59))
sketch1.addConstraint(Sketcher.Constraint("Perpendicular", 42, 60))
sketch1.addConstraint(Sketcher.Constraint("Perpendicular", 44, 62))
sketch1.addConstraint(Sketcher.Constraint("Perpendicular", 45, 63))
sketch1.addConstraint(Sketcher.Constraint("Perpendicular", 47, 65))
sketch1.addConstraint(Sketcher.Constraint("Perpendicular", 48, 66))
sketch1.addConstraint(Sketcher.Constraint("Perpendicular", 50, 68))
sketch1.addConstraint(Sketcher.Constraint("Perpendicular", 51, 69))
sketch1.addConstraint(Sketcher.Constraint("Perpendicular", 53, 71))
sketch1.addConstraint(Sketcher.Constraint("Horizontal", 33, 2, 34, 2))
sketch1.addConstraint(Sketcher.Constraint("Horizontal", 25, 2, 42, 2))
sketch1.addConstraint(Sketcher.Constraint("Equal", 0, 2))
sketch1.addConstraint(Sketcher.Constraint("Equal", 3, 5))
sketch1.addConstraint(Sketcher.Constraint("Equal", 2, 6))
sketch1.addConstraint(Sketcher.Constraint("Equal", 6, 8))
sketch1.addConstraint(Sketcher.Constraint("Equal", 5, 9))
sketch1.addConstraint(Sketcher.Constraint("Equal", 9, 11))
sketch1.addConstraint(Sketcher.Constraint("Equal", 8, 12))
sketch1.addConstraint(Sketcher.Constraint("Equal", 12, 14))
sketch1.addConstraint(Sketcher.Constraint("Equal", 11, 15))
sketch1.addConstraint(Sketcher.Constraint("Equal", 29, 33))
sketch1.addConstraint(Sketcher.Constraint("Radius", 7, Q("3.5 mm")))
sketch1.addConstraint(Sketcher.Constraint("Radius", 16, Q("2.5 mm")))
sketch1.addConstraint(Sketcher.Constraint("Radius", 1, Q("3.523 mm")))
sketch1.addConstraint(Sketcher.Constraint("Radius", 4, Q("2.498 mm")))
sketch1.addConstraint(Sketcher.Constraint("Radius", 10, Q("2.502 mm")))
sketch1.addConstraint(Sketcher.Constraint("Radius", 13, Q("3.4772 mm")))
sketch1.addConstraint(Sketcher.Constraint("DistanceY", -1, 1, 0, 2, Q("3.42 mm")))
sketch1.addConstraint(Sketcher.Constraint("DistanceY", -1, 1, 6, 2, Q("2.59 mm")))
sketch1.addConstraint(Sketcher.Constraint("DistanceX", 13, 2, -1, 1, Q("3.42 mm")))
sketch1.addConstraint(Sketcher.Constraint("Distance", 0, Q("0.567 mm")))
sketch1.addConstraint(Sketcher.Constraint("DistanceX", 13, 3, -1, 1, Q("0.022 mm")))
sketch1.addConstraint(Sketcher.Constraint("DistanceY", 31, 3, -1, 1, Q("0.022 mm")))
sketch1.addConstraint(Sketcher.Constraint("DistanceX", 0, 2, -1, 1, Q("0.744 mm")))
sketch1.addConstraint(Sketcher.Constraint("DistanceX", 2, 2, -1, 1, Q("1.146 mm")))
sketch1.addConstraint(Sketcher.Constraint("DistanceX", 4, 2, -1, 1, Q("1.434 mm")))
sketch1.addConstraint(Sketcher.Constraint("DistanceX", 5, 2, -1, 1, Q("1.828 mm")))
sketch1.addConstraint(Sketcher.Constraint("DistanceX", 14, 2, -1, 1, Q("2.974 mm")))
sketch1.addConstraint(Sketcher.Constraint("DistanceX", 1, 2, -1, 1, Q("1.0658 mm")))
pad1 = body.newObject("PartDesign::Pad", "Pad")
pad1.Profile = sketch1
pad1.Length = 4
pad1.Midplane = True

# Sketch on XY plane
sketch2 = body.newObject("Sketcher::SketchObject", "Sketch001")
sketch2.AttachmentSupport = (doc.getObject("XY_Plane"), [""])
sketch2.MapMode = "FlatFace"
sketch2.addGeometry(Part.LineSegment(Vector(2, 0, 0), Vector(6, 0, 0)), False)
sketch2.addGeometry(Part.LineSegment(Vector(6, 0, 0), Vector(6, 2, 0)), False)
sketch2.addGeometry(Part.LineSegment(Vector(6, 2, 0), Vector(2, 2, 0)), False)
sketch2.addGeometry(Part.LineSegment(Vector(2, 2, 0), Vector(2, 0, 0)), False)
sketch2.addConstraint(Sketcher.Constraint("Coincident", 0, 2, 1, 1))
sketch2.addConstraint(Sketcher.Constraint("Coincident", 1, 2, 2, 1))
sketch2.addConstraint(Sketcher.Constraint("Coincident", 2, 2, 3, 1))
sketch2.addConstraint(Sketcher.Constraint("Coincident", 3, 2, 0, 1))
sketch2.addConstraint(Sketcher.Constraint("Horizontal", 0))
sketch2.addConstraint(Sketcher.Constraint("Vertical", 1))
sketch2.addConstraint(Sketcher.Constraint("Horizontal", 2))
sketch2.addConstraint(Sketcher.Constraint("Vertical", 3))
sketch2.addConstraint(Sketcher.Constraint("PointOnObject", 0, 2, -1))
sketch2.addConstraint(Sketcher.Constraint("DistanceX", 0, 1, 0, 2, Q("4 mm")))
sketch2.addConstraint(Sketcher.Constraint("DistanceY", 1, 1, 1, 2, Q("2 mm")))
sketch2.addConstraint(Sketcher.Constraint("DistanceX", -1, 1, 0, 2, Q("6 mm")))
revolution = body.newObject("PartDesign::Revolution", "Revolution")
revolution.Profile = sketch2
revolution.ReferenceAxis = (sketch2, ["H_Axis"])
revolution.Angle = 360

# Sketch on YZ plane
sketch3 = body.newObject("Sketcher::SketchObject", "Sketch002")
sketch3.AttachmentSupport = (doc.getObject("YZ_Plane"), [""])
sketch3.MapMode = "FlatFace"
sketch3.AttachmentOffset = App.Placement(Vector(0, 0, 6), App.Rotation())
sketch3.addGeometry(Part.Circle(Vector(0, 0, 0), Vector(0, 0, 1), 1), False)
sketch3.addConstraint(Sketcher.Constraint("Coincident", 0, 3, -1, 1))
sketch3.addConstraint(Sketcher.Constraint("Diameter", 0, Q("2 mm")))
pocket1 = body.newObject("PartDesign::Pocket", "Pocket")
pocket1.Profile = sketch3
pocket1.Length = 16
pocket1.Midplane = True

doc.recompute()
